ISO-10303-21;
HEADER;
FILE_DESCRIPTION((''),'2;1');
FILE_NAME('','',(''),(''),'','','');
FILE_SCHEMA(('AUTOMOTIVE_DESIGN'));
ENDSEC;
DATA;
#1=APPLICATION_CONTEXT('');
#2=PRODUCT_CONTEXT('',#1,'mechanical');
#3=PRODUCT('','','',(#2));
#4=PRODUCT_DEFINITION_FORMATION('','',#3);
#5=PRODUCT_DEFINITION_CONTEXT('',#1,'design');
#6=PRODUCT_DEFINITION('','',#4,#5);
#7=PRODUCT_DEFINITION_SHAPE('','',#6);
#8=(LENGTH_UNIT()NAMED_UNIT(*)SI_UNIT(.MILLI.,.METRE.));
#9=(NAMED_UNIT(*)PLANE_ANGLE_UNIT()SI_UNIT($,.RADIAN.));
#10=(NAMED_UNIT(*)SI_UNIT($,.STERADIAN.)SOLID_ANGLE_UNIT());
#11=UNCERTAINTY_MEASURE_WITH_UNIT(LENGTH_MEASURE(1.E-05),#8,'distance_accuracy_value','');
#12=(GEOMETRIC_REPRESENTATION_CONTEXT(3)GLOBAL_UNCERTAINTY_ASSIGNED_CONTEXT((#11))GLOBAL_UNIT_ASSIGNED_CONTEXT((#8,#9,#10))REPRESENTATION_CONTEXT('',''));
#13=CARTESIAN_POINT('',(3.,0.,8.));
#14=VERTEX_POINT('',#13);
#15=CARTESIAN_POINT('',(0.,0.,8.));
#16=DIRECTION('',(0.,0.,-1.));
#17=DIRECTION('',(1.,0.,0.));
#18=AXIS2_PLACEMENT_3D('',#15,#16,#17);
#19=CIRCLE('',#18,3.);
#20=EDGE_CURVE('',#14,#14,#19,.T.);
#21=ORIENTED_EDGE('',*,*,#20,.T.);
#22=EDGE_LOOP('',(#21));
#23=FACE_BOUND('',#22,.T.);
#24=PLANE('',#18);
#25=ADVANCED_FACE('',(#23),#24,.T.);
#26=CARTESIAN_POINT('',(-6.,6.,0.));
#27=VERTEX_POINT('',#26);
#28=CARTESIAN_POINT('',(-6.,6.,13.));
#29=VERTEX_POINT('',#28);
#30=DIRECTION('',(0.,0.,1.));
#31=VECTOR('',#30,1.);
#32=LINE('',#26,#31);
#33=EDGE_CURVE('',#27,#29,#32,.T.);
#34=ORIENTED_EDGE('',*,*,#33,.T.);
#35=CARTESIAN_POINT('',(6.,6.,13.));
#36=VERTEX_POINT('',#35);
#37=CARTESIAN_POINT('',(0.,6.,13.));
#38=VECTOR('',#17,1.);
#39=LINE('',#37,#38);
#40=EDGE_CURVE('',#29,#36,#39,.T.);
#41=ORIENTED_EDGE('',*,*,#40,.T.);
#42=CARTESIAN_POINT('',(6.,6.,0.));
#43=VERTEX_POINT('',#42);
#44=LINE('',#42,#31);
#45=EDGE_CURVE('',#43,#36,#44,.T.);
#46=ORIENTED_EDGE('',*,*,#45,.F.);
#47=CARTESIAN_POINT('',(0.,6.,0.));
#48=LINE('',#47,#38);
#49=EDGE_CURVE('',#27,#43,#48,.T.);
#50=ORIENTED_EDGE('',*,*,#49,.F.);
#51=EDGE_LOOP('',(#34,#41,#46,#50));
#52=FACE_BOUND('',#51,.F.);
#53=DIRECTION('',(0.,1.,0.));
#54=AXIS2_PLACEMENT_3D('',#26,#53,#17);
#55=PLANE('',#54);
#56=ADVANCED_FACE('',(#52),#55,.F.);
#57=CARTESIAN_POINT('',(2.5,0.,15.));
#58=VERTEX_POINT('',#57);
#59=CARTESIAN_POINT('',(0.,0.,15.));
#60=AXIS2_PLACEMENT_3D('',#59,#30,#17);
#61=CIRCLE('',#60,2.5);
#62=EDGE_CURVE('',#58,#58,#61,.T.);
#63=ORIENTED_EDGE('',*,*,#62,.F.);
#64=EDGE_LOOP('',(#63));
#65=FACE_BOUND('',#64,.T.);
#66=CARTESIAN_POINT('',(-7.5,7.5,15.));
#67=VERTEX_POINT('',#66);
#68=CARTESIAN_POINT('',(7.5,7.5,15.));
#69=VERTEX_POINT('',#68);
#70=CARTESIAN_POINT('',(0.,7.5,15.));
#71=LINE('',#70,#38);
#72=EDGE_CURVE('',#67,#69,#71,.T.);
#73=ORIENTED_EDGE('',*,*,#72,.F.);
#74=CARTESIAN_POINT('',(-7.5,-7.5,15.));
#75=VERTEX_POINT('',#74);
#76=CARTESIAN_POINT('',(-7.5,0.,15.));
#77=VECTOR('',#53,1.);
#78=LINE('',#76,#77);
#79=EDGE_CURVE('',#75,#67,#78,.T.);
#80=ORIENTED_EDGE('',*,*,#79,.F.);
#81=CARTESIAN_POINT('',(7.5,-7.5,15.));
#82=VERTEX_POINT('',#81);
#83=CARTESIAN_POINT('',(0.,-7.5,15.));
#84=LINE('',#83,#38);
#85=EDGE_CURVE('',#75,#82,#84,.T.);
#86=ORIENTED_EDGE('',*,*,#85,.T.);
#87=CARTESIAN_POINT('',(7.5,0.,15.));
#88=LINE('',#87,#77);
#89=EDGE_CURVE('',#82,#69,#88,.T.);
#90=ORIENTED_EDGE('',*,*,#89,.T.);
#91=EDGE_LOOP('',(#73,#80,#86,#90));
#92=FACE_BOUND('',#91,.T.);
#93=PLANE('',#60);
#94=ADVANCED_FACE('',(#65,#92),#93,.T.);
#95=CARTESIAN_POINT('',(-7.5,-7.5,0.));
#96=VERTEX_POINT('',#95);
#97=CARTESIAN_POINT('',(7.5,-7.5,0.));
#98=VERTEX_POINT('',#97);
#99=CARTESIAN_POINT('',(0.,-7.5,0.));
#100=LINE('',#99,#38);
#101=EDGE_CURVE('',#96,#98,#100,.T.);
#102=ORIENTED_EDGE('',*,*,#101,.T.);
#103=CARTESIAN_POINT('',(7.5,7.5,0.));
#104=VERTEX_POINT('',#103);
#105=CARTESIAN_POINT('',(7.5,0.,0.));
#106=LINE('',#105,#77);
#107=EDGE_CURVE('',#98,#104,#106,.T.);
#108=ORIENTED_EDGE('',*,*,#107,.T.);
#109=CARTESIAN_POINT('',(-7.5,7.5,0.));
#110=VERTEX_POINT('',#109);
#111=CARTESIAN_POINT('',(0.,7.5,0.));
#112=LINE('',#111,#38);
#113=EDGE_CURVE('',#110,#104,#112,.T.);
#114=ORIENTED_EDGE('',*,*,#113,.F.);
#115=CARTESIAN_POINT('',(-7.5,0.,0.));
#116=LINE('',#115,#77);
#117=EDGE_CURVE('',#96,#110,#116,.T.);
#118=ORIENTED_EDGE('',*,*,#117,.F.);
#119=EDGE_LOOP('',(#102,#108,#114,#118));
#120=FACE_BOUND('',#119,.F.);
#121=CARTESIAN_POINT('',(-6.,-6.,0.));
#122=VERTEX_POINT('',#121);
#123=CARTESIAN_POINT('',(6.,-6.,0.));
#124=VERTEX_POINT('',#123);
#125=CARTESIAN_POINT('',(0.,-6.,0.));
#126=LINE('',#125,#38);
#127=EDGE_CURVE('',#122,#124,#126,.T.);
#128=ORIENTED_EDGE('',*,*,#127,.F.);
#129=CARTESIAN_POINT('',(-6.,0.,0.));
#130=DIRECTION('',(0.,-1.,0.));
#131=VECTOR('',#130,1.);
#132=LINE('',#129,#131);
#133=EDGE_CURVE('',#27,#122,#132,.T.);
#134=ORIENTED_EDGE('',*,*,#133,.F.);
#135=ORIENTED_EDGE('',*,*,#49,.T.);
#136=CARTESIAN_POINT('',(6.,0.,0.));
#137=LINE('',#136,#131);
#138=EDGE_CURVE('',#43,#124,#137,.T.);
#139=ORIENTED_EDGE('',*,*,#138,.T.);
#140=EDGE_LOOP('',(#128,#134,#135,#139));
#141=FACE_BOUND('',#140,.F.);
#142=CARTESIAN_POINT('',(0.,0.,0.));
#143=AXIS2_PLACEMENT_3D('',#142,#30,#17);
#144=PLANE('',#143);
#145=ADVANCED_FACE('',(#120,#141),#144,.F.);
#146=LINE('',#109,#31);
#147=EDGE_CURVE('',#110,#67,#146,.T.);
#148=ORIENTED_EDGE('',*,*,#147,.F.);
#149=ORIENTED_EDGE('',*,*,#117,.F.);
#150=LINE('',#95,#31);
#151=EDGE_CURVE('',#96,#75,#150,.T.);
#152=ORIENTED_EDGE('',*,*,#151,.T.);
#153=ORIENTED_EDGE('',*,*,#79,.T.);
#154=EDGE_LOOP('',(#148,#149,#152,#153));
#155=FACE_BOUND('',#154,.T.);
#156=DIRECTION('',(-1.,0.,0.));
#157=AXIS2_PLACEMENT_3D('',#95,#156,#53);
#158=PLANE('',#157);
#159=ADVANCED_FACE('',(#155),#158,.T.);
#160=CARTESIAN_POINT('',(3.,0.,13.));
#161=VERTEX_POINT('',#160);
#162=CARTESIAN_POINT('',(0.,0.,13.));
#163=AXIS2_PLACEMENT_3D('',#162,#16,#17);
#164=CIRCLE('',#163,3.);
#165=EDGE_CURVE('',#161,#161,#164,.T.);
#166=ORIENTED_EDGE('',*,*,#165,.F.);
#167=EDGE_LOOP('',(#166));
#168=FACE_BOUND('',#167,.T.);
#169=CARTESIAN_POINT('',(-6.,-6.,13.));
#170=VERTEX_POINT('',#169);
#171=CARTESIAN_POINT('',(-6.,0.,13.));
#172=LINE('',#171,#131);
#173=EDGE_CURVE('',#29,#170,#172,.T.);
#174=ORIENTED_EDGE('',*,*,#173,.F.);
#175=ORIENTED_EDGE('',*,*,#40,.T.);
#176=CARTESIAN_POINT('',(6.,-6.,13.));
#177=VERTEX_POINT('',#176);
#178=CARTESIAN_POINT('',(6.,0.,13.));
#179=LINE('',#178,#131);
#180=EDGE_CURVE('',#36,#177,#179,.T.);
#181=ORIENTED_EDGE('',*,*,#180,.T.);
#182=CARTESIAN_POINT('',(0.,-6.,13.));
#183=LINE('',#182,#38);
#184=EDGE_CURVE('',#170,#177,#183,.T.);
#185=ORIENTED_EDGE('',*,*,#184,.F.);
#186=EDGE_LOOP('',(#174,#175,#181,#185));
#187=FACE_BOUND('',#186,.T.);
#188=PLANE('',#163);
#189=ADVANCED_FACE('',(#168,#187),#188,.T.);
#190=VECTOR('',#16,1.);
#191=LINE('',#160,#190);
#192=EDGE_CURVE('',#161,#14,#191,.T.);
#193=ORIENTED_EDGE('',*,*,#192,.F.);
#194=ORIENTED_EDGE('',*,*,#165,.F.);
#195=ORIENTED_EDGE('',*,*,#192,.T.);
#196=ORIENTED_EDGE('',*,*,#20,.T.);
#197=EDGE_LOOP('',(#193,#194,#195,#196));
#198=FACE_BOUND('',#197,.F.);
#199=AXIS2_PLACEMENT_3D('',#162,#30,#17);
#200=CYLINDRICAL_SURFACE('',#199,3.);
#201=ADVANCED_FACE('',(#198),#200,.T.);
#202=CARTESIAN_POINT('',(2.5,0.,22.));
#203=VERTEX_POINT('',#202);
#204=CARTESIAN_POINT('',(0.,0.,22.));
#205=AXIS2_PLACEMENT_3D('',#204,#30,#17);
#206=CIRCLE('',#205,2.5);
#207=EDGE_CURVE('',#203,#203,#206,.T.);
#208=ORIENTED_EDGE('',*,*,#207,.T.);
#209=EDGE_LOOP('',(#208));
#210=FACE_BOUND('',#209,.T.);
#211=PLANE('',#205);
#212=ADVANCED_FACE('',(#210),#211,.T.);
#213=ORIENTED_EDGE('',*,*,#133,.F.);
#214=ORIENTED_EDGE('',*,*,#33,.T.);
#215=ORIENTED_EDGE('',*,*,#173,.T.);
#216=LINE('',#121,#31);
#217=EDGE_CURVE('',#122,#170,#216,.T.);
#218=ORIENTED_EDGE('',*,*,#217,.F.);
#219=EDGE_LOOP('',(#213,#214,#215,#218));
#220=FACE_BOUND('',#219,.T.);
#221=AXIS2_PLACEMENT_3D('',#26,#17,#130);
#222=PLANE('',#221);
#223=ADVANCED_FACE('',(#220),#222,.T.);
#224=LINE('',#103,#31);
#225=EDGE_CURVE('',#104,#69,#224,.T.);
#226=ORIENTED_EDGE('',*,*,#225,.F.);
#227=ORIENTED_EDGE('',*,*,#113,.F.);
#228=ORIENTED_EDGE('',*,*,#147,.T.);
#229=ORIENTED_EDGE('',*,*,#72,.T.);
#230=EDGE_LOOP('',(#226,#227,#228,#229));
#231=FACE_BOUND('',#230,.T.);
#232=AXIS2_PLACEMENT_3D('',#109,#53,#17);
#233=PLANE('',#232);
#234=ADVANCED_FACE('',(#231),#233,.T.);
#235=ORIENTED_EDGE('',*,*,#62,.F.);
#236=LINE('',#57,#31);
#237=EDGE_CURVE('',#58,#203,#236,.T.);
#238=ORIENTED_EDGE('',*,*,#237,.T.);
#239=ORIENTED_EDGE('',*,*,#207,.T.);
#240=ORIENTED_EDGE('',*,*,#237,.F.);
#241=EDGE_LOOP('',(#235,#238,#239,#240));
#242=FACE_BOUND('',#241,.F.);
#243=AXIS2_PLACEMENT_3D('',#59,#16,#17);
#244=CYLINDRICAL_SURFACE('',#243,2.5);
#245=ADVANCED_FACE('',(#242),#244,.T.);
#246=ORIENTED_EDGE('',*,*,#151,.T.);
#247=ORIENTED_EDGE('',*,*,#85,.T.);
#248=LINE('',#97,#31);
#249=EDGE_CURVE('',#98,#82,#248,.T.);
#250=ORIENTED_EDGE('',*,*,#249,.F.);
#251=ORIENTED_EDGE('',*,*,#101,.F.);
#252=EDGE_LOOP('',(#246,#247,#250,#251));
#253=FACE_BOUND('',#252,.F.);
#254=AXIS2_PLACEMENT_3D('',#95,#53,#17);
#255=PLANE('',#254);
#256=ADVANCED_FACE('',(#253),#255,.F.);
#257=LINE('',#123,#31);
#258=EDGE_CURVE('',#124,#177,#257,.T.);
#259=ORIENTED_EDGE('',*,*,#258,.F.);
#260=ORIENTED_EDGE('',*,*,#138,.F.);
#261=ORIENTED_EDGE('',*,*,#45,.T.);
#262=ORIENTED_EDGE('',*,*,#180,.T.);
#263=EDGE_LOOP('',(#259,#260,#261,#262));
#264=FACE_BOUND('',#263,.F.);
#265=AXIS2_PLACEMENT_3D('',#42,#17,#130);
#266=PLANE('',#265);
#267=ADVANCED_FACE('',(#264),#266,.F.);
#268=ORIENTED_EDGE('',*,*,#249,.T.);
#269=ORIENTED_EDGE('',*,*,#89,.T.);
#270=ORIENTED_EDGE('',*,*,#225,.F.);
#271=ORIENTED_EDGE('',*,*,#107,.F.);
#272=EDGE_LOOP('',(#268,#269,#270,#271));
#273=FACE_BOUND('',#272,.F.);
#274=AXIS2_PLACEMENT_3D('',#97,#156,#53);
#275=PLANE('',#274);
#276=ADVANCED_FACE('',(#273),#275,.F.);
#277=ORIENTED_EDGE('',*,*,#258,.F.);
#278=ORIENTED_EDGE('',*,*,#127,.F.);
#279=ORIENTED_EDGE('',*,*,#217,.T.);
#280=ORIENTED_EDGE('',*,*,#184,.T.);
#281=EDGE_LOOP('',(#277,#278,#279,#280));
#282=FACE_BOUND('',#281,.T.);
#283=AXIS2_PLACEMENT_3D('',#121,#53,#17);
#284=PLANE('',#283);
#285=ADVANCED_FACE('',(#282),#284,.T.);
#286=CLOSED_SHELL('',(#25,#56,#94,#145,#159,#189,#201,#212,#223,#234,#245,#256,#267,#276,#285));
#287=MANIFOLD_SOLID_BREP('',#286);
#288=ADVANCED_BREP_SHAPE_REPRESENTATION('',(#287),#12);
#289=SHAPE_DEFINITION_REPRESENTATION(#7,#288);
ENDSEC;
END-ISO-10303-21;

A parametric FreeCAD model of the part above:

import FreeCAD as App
import Part
import Sketcher
from FreeCAD import Vector
Q = App.Units.Quantity


def add_polygon(sketch, points):
    """Adds a closed chain of lines whose ends are joined by coincident constraints."""
    first, n = sketch.GeometryCount, len(points)
    for a, b in zip(points, points[1:] + points[:1]):
        sketch.addGeometry(Part.LineSegment(App.Vector(*a, 0), App.Vector(*b, 0)), False)
    for i in range(n):
        sketch.addConstraint(Sketcher.Constraint("Coincident", first + i, 2, first + (i + 1) % n, 1))

doc = App.newDocument("Part")
body = doc.addObject("PartDesign::Body", "Body")

# Sketch on XY plane
sketch1 = body.newObject("Sketcher::SketchObject", "Sketch")
sketch1.AttachmentSupport = (doc.getObject("XY_Plane"), [""])
sketch1.MapMode = "FlatFace"
add_polygon(sketch1, [(-8, 8), (-8, -8), (8, -8), (8, 8)])  # lines 0-3
sketch1.addConstraint([
    Sketcher.Constraint("Vertical", 0),
    Sketcher.Constraint("Horizontal", 1),
    Sketcher.Constraint("Vertical", 2),
    Sketcher.Constraint("Horizontal", 3),
    Sketcher.Constraint("Symmetric", 0, 2, 2, 2, -1, 1),
    Sketcher.Constraint("Equal", 3, 0),
    Sketcher.Constraint("DistanceX", 1, 1, 1, 2, Q("15 mm")),
])
pad1 = body.newObject("PartDesign::Pad", "Pad")
pad1.Profile = sketch1
pad1.Length = 15

# Sketch on XY plane
sketch2 = body.newObject("Sketcher::SketchObject", "Sketch001")
sketch2.AttachmentSupport = (doc.getObject("XY_Plane"), [""])
sketch2.MapMode = "FlatFace"
sketch2.AttachmentOffset = App.Placement(Vector(0, 0, 15), App.Rotation())
sketch2.addGeometry(Part.Circle(Vector(0, 0, 0), Vector(0, 0, 1), 2.5), False)
sketch2.addConstraint([
    Sketcher.Constraint("Coincident", 0, 3, -1, 1),
    Sketcher.Constraint("Diameter", 0, Q("5 mm")),
])
pad2 = body.newObject("PartDesign::Pad", "Pad001")
pad2.Profile = sketch2
pad2.Length = 7

# Sketch on XY plane
sketch3 = body.newObject("Sketcher::SketchObject", "Sketch002")
sketch3.AttachmentSupport = (doc.getObject("XY_Plane"), [""])
sketch3.MapMode = "FlatFace"
add_polygon(sketch3, [(-6, -6), (-6, 6), (6, 6), (6, -6)])  # lines 0-3
sketch3.addConstraint([
    Sketcher.Constraint("Vertical", 0),
    Sketcher.Constraint("Horizontal", 1),
    Sketcher.Constraint("Vertical", 2),
    Sketcher.Constraint("Horizontal", 3),
    Sketcher.Constraint("Symmetric", 0, 2, 2, 2, -1, 1),
    Sketcher.Constraint("Equal", 3, 0),
    Sketcher.Constraint("DistanceX", 1, 1, 1, 2, Q("12 mm")),
])
pocket1 = body.newObject("PartDesign::Pocket", "Pocket")
pocket1.Profile = sketch3
pocket1.Length = 13
pocket1.Reversed = True

# Sketch on XY plane
sketch4 = body.newObject("Sketcher::SketchObject", "Sketch003")
sketch4.AttachmentSupport = (doc.getObject("XY_Plane"), [""])
sketch4.MapMode = "FlatFace"
sketch4.AttachmentOffset = App.Placement(Vector(0, 0, 13), App.Rotation())
sketch4.addGeometry(Part.Circle(Vector(0, 0, 0), Vector(0, 0, 1), 3), False)
sketch4.addConstraint([
    Sketcher.Constraint("Coincident", 0, 3, -1, 1),
    Sketcher.Constraint("Diameter", 0, Q("6 mm")),
])
pad3 = body.newObject("PartDesign::Pad", "Pad002")
pad3.Profile = sketch4
pad3.Length = 5
pad3.Reversed = True

doc.recompute()
